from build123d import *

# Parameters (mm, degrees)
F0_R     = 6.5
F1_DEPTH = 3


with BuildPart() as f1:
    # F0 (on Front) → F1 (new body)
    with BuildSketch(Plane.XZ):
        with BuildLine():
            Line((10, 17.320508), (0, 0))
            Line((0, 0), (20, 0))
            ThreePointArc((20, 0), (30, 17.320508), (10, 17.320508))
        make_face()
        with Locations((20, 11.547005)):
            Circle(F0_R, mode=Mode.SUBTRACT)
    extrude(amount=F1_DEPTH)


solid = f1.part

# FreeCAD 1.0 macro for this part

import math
import FreeCAD as App
import Part
import Sketcher

V = App.Vector
Q = App.Units.Quantity

doc = App.newDocument("Part")
params = doc.addObject("Spreadsheet::Sheet", "Params")
for row, (alias, value) in enumerate([
    ("sketch1_diameter", "13 mm"),
    ("sketch1_width", "20 mm"),
    ("pad1_length", "3 mm"),
], start=1):
    params.set(f"A{row}", alias)
    params.set(f"B{row}", "=" + value)
    params.setAlias(f"B{row}", alias)

body = doc.addObject("PartDesign::Body", "Body")

# Sketch on XZ plane
sketch1 = body.newObject("Sketcher::SketchObject", "Sketch")
sketch1.AttachmentSupport = (doc.getObject("XZ_Plane"), [""])
sketch1.MapMode = "FlatFace"
sketch1.addGeometry([
    Part.LineSegment(V(10, 17, 0), V(0, 0, 0)),
    Part.LineSegment(V(0, 0, 0), V(20, 0, 0)),
    Part.ArcOfCircle(Part.Circle(V(20, 12, 0), V(0, 0, 1), 12), math.radians(-90), math.radians(150)),
    Part.Circle(V(20, 12, 0), V(0, 0, 1), 6),
], False)
sketch1.addConstraint([
    Sketcher.Constraint("Coincident", 0, 2, 1, 1),
    Sketcher.Constraint("Tangent", 1, 2, 2, 1),
    Sketcher.Constraint("Tangent", 2, 2, 0, 1),
    Sketcher.Constraint("Horizontal", 1),
    Sketcher.Constraint("Coincident", 0, 2, -1, 1),
    Sketcher.Constraint("Coincident", 3, 3, 2, 3),
    Sketcher.Constraint("Diameter", 3, Q("13 mm")),
    Sketcher.Constraint("DistanceX", 1, 1, 1, 2, Q("20 mm")),
    Sketcher.Constraint("Angle", 0, Q("-120 deg")),
])
sketch1.setExpression("Constraints[6]", "Params.sketch1_diameter")
sketch1.setExpression("Constraints[7]", "Params.sketch1_width")
pad1 = body.newObject("PartDesign::Pad", "Pad")
pad1.Profile = sketch1
pad1.setExpression("Length", "Params.pad1_length")

doc.recompute()
